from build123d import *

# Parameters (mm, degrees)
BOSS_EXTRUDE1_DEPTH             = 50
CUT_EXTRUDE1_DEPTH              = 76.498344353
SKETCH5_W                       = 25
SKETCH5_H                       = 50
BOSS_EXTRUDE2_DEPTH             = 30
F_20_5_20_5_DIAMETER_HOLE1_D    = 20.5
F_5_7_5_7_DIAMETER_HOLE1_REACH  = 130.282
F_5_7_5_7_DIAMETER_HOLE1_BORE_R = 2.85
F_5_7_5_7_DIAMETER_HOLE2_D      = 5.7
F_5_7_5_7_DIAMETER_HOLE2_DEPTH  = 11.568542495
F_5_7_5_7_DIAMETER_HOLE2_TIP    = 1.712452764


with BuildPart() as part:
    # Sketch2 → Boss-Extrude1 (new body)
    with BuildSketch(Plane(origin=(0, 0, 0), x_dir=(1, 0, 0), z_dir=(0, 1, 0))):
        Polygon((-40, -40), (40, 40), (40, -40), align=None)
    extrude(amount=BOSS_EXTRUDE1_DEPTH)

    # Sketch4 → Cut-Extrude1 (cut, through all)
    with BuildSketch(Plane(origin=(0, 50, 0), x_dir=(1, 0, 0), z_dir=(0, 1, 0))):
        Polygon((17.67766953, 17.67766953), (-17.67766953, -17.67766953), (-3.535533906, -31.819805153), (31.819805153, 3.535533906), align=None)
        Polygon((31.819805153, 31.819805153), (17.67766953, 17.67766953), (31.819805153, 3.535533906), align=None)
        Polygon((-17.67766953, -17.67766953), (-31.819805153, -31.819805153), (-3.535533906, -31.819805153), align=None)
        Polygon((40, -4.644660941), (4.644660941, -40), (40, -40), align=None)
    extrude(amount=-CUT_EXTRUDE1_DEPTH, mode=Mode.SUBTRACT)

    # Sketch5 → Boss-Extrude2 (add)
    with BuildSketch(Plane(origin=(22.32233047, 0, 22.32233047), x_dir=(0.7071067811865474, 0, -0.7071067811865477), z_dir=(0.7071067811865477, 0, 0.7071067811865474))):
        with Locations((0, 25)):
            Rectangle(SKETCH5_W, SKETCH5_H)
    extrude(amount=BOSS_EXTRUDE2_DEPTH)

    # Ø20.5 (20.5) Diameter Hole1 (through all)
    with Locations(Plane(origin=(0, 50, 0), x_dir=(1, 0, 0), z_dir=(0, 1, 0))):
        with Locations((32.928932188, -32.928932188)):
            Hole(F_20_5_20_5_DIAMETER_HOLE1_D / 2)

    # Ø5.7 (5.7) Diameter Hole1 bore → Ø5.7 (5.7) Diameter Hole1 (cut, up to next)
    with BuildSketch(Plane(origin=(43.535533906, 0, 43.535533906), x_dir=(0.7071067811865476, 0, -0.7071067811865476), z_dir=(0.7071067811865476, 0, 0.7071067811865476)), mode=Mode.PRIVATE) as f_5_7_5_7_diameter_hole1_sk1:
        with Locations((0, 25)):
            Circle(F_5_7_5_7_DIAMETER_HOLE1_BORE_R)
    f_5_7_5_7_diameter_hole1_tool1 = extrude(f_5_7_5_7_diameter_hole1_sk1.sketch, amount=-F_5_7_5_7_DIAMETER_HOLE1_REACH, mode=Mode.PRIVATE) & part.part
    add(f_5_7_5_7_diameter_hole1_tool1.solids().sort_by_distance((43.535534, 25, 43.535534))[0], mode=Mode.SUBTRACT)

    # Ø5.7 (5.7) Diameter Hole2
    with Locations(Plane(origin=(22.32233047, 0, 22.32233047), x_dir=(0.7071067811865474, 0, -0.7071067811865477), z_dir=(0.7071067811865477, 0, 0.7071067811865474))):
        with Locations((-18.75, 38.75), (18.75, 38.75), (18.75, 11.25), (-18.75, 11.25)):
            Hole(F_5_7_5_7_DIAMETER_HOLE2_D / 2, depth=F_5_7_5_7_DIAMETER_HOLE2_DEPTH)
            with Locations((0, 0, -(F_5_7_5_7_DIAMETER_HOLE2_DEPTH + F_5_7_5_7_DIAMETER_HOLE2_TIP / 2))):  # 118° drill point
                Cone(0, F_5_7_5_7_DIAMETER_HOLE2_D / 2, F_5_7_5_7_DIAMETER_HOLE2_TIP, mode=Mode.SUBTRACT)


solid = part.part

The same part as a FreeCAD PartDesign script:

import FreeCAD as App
import Part
import Sketcher
Q = App.Units.Quantity


def add_polygon(sketch, points):
    """Adds a closed chain of lines whose ends are joined by coincident constraints."""
    first, n = sketch.GeometryCount, len(points)
    for a, b in zip(points, points[1:] + points[:1]):
        sketch.addGeometry(Part.LineSegment(App.Vector(*a, 0), App.Vector(*b, 0)), False)
    for i in range(n):
        sketch.addConstraint(Sketcher.Constraint("Coincident", first + i, 2, first + (i + 1) % n, 1))

doc = App.newDocument("Part")
body = doc.addObject("PartDesign::Body", "Body")

sketch1 = body.newObject("Sketcher::SketchObject", "Sketch")
sketch1.AttachmentSupport = (doc.getObject("XZ_Plane"), [""])
sketch1.MapMode = "FlatFace"
add_polygon(sketch1, [(40, -40), (-40, 40), (40, 40)])
sketch1.addConstraint(Sketcher.Constraint("Horizontal", 1))
sketch1.addConstraint(Sketcher.Constraint("Vertical", 2))
sketch1.addConstraint(Sketcher.Constraint("Symmetric", 0, 2, 2, 2, -1, 1))
sketch1.addConstraint(Sketcher.Constraint("Equal", 1, 2))
sketch1.addConstraint(Sketcher.Constraint("DistanceX", 1, 1, 1, 2, Q("80 mm")))
pad1 = body.newObject("PartDesign::Pad", "Pad")
pad1.Profile = sketch1
pad1.Length = 50
pad1.Reversed = True

sketch2 = body.newObject("Sketcher::SketchObject", "Sketch001")
sketch2.AttachmentSupport = (doc.getObject("XZ_Plane"), [""])
sketch2.MapMode = "FlatFace"
sketch2.AttachmentOffset = App.Placement(App.Vector(0, 0, -50), App.Rotation())
add_polygon(sketch2, [(-4, 32), (32, -4), (32, -32), (-32, 32)])
add_polygon(sketch2, [(40, 5), (5, 40), (40, 40)])
sketch2.addConstraint(Sketcher.Constraint("Vertical", 1))
sketch2.addConstraint(Sketcher.Constraint("Horizontal", 3))
sketch2.addConstraint(Sketcher.Constraint("Horizontal", 5))
sketch2.addConstraint(Sketcher.Constraint("Vertical", 6))
sketch2.addConstraint(Sketcher.Constraint("Symmetric", 1, 2, 2, 2, -1, 1))
sketch2.addConstraint(Sketcher.Constraint("Parallel", 0, 2))
sketch2.addConstraint(Sketcher.Constraint("Parallel", 2, 4))
sketch2.addConstraint(Sketcher.Constraint("Equal", 3, 1))
sketch2.addConstraint(Sketcher.Constraint("Equal", 0, 4))
sketch2.addConstraint(Sketcher.Constraint("Distance", 0, Q("50 mm")))
sketch2.addConstraint(Sketcher.Constraint("Distance", 2, Q("90 mm")))
sketch2.addConstraint(Sketcher.Constraint("DistanceY", -1, 1, 4, 2, Q("40 mm")))
sketch2.addConstraint(Sketcher.Constraint("DistanceX", -1, 1, 5, 2, Q("40 mm")))
pocket1 = body.newObject("PartDesign::Pocket", "Pocket")
pocket1.Profile = sketch2
pocket1.Type = "ThroughAll"
pocket1.Reversed = True

sketch3 = body.newObject("Sketcher::SketchObject", "Sketch002")
sketch3.Placement = App.Placement(App.Vector(22.32233, 0, 22.32233), App.Rotation(App.Vector(0.707106781, 0, -0.707106781), App.Vector(0, 0.999999999, 0), App.Vector(0.707106781, 0, 0.707106781), "ZXY"))
add_polygon(sketch3, [(-12, 50), (-12, 0), (12, 0), (12, 50)])
sketch3.addConstraint(Sketcher.Constraint("Vertical", 0))
sketch3.addConstraint(Sketcher.Constraint("Horizontal", 1))
sketch3.addConstraint(Sketcher.Constraint("Vertical", 2))
sketch3.addConstraint(Sketcher.Constraint("Horizontal", 3))
sketch3.addConstraint(Sketcher.Constraint("Symmetric", 0, 2, 1, 2, -1, 1))
sketch3.addConstraint(Sketcher.Constraint("DistanceX", 1, 1, 1, 2, Q("25 mm")))
sketch3.addConstraint(Sketcher.Constraint("DistanceY", 0, 2, 0, 1, Q("50 mm")))
pad2 = body.newObject("PartDesign::Pad", "Pad001")
pad2.Profile = sketch3
pad2.Length = 30

sketch4 = body.newObject("Sketcher::SketchObject", "Sketch003")
sketch4.AttachmentSupport = (doc.getObject("XZ_Plane"), [""])
sketch4.MapMode = "FlatFace"
sketch4.AttachmentOffset = App.Placement(App.Vector(0, 0, -50), App.Rotation())
sketch4.addGeometry(Part.Circle(App.Vector(33, 33, 0), App.Vector(0, 0, 1), 10), False)
sketch4.addConstraint(Sketcher.Constraint("Diameter", 0, Q("20.5 mm")))
sketch4.addConstraint(Sketcher.Constraint("DistanceX", -1, 1, 0, 3, Q("32.928932 mm")))
sketch4.addConstraint(Sketcher.Constraint("DistanceY", -1, 1, 0, 3, Q("32.928932 mm")))
doc.recompute()
hole = body.newObject("PartDesign::Hole", "Hole")
hole.Profile = sketch4
hole.ThreadType = "None"
hole.Diameter = 20.5
hole.DepthType = "ThroughAll"
hole.Reversed = True

sketch5 = body.newObject("Sketcher::SketchObject", "Sketch004")
sketch5.Placement = App.Placement(App.Vector(43.535534, 0, 43.535534), App.Rotation(App.Vector(0.707106781, 0, -0.707106781), App.Vector(0, 0.999999999, 0), App.Vector(0.707106781, 0, 0.707106781), "ZXY"))
sketch5.addGeometry(Part.Circle(App.Vector(0, 25, 0), App.Vector(0, 0, 1), 2.9), False)
sketch5.addConstraint(Sketcher.Constraint("PointOnObject", 0, 3, -2))
sketch5.addConstraint(Sketcher.Constraint("Diameter", 0, Q("5.7 mm")))
sketch5.addConstraint(Sketcher.Constraint("DistanceY", -1, 1, 0, 3, Q("25 mm")))
pocket2 = body.newObject("PartDesign::Pocket", "Pocket001")
pocket2.Profile = sketch5
pocket2.Type = "UpToFirst"

sketch6 = body.newObject("Sketcher::SketchObject", "Sketch005")
sketch6.Placement = App.Placement(App.Vector(22.32233, 0, 22.32233), App.Rotation(App.Vector(0.707106781, 0, -0.707106781), App.Vector(0, 0.999999999, 0), App.Vector(0.707106781, 0, 0.707106781), "ZXY"))
sketch6.addGeometry(Part.Circle(App.Vector(-18.7, 38.7, 0), App.Vector(0, 0, 1), 2.9), False)
sketch6.addGeometry(Part.Circle(App.Vector(18.7, 38.7, 0), App.Vector(0, 0, 1), 2.9), False)
sketch6.addGeometry(Part.Circle(App.Vector(18.7, 11.2, 0), App.Vector(0, 0, 1), 2.9), False)
sketch6.addGeometry(Part.Circle(App.Vector(-18.7, 11.2, 0), App.Vector(0, 0, 1), 2.9), False)
sketch6.addConstraint(Sketcher.Constraint("Equal", 0, 1))
sketch6.addConstraint(Sketcher.Constraint("Equal", 1, 2))
sketch6.addConstraint(Sketcher.Constraint("Equal", 2, 3))
sketch6.addConstraint(Sketcher.Constraint("Symmetric", 0, 3, 1, 3, -2))
sketch6.addConstraint(Sketcher.Constraint("Symmetric", 2, 3, 3, 3, -2))
sketch6.addConstraint(Sketcher.Constraint("Vertical", 1, 3, 2, 3))
sketch6.addConstraint(Sketcher.Constraint("Diameter", 0, Q("5.7 mm")))
sketch6.addConstraint(Sketcher.Constraint("DistanceX", 0, 3, 1, 3, Q("37.5 mm")))
sketch6.addConstraint(Sketcher.Constraint("DistanceY", 2, 3, 1, 3, Q("27.5 mm")))
sketch6.addConstraint(Sketcher.Constraint("DistanceY", -1, 1, 0, 3, Q("38.75 mm")))
doc.recompute()
hole2 = body.newObject("PartDesign::Hole", "Hole001")
hole2.Profile = sketch6
hole2.ThreadType = "None"
hole2.Diameter = 5.7
hole2.DepthType = "Dimension"
hole2.Depth = 11.568542
hole2.DrillPoint = "Angled"
hole2.DrillPointAngle = 118

doc.recompute()
